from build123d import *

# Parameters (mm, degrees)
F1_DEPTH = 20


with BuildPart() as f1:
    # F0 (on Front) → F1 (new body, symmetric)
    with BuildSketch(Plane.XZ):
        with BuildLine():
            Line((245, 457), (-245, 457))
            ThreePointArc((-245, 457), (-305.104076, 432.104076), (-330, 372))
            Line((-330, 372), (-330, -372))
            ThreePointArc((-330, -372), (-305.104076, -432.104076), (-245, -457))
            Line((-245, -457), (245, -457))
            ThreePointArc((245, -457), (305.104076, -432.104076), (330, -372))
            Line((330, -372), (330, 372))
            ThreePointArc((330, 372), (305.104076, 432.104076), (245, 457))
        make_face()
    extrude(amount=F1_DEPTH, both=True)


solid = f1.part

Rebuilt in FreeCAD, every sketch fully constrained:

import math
import FreeCAD as App
import Part
import Sketcher
from FreeCAD import Vector

doc = App.newDocument("Part")
body = doc.addObject("PartDesign::Body", "Body")

# Sketch on XZ plane
sketch1 = doc.addObject("Sketcher::SketchObject", "Sketch")
body.addObject(sketch1)
sketch1.AttachmentSupport = (doc.XZ_Plane, [""])
sketch1.MapMode = "FlatFace"
sketch1.addGeometry([
    Part.LineSegment(Vector(245, 457, 0), Vector(-245, 457, 0)),  # 0
    Part.ArcOfCircle(Part.Circle(Vector(-245, 372, 0), Vector(0, 0, 1), 85), math.radians(90), math.radians(180)),  # 1
    Part.LineSegment(Vector(-330, 372, 0), Vector(-330, -372, 0)),  # 2
    Part.ArcOfCircle(Part.Circle(Vector(-245, -372, 0), Vector(0, 0, 1), 85), math.radians(-180), math.radians(-90)),  # 3
    Part.LineSegment(Vector(-245, -457, 0), Vector(245, -457, 0)),  # 4
    Part.ArcOfCircle(Part.Circle(Vector(245, -372, 0), Vector(0, 0, 1), 85), math.radians(-90), math.radians(0)),  # 5
    Part.LineSegment(Vector(330, -372, 0), Vector(330, 372, 0)),  # 6
    Part.ArcOfCircle(Part.Circle(Vector(245, 372, 0), Vector(0, 0, 1), 85), math.radians(0), math.radians(90)),  # 7
], False)
sketch1.addConstraint([
    Sketcher.Constraint("Tangent", 0, 2, 1, 1),
    Sketcher.Constraint("Tangent", 1, 2, 2, 1),
    Sketcher.Constraint("Tangent", 2, 2, 3, 1),
    Sketcher.Constraint("Tangent", 3, 2, 4, 1),
    Sketcher.Constraint("Tangent", 4, 2, 5, 1),
    Sketcher.Constraint("Tangent", 5, 2, 6, 1),
    Sketcher.Constraint("Tangent", 6, 2, 7, 1),
    Sketcher.Constraint("Tangent", 7, 2, 0, 1),
    Sketcher.Constraint("Horizontal", 0),
    Sketcher.Constraint("Vertical", 2),
    Sketcher.Constraint("Horizontal", 4),
    Sketcher.Constraint("Vertical", 6),
    Sketcher.Constraint("Equal", 1, 3),
    Sketcher.Constraint("Equal", 3, 5),
    Sketcher.Constraint("Equal", 5, 7),
    Sketcher.Constraint("Symmetric", 1, 3, 5, 3, -1, 1),
    Sketcher.Constraint("Radius", 1, 85.000001),
    Sketcher.Constraint("DistanceX", 0, 2, 0, 1, 490.0),
    Sketcher.Constraint("DistanceY", 2, 2, 2, 1, 744.0),
])
pad1 = doc.addObject("PartDesign::Pad", "Pad")
body.addObject(pad1)
pad1.Profile = sketch1
pad1.Length = 40
pad1.Midplane = True

doc.recompute()
